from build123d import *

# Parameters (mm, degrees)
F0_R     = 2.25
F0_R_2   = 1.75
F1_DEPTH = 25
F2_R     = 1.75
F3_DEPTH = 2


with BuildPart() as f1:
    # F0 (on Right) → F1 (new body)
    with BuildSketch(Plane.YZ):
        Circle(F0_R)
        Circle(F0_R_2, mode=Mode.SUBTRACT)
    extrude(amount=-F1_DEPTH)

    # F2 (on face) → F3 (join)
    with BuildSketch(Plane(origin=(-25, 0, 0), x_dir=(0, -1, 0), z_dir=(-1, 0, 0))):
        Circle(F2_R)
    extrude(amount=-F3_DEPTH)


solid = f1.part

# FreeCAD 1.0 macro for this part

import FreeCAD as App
import Part
import Sketcher

doc = App.newDocument("Part")
body = doc.addObject("PartDesign::Body", "Body")

sketch1 = body.newObject("Sketcher::SketchObject", "Sketch")
sketch1.AttachmentSupport = (doc.getObject("YZ_Plane"), [""])
sketch1.MapMode = "FlatFace"
sketch1.addGeometry([
    Part.Circle(App.Vector(0, 0, 0), App.Vector(0, 0, 1), 2.25),
    Part.Circle(App.Vector(0, 0, 0), App.Vector(0, 0, 1), 1.75),
], False)
sketch1.addConstraint([
    Sketcher.Constraint("Coincident", 0, 3, -1, 1),
    Sketcher.Constraint("Coincident", 1, 3, -1, 1),
    Sketcher.Constraint("Diameter", 0, 4.5),
    Sketcher.Constraint("Diameter", 1, 3.5),
])
pad1 = body.newObject("PartDesign::Pad", "Pad")
pad1.Profile = sketch1
pad1.Length = 25
pad1.Reversed = True

sketch2 = body.newObject("Sketcher::SketchObject", "Sketch001")
sketch2.AttachmentSupport = (doc.getObject("YZ_Plane"), [""])
sketch2.MapMode = "FlatFace"
sketch2.AttachmentOffset = App.Placement(App.Vector(0, 0, -25), App.Rotation())
sketch2.addGeometry(Part.Circle(App.Vector(0, 0, 0), App.Vector(0, 0, 1), 1.75), False)
sketch2.addConstraint([
    Sketcher.Constraint("Coincident", 0, 3, -1, 1),
    Sketcher.Constraint("Diameter", 0, 3.5),
])
pad2 = body.newObject("PartDesign::Pad", "Pad001")
pad2.Profile = sketch2
pad2.Length = 2

doc.recompute()
